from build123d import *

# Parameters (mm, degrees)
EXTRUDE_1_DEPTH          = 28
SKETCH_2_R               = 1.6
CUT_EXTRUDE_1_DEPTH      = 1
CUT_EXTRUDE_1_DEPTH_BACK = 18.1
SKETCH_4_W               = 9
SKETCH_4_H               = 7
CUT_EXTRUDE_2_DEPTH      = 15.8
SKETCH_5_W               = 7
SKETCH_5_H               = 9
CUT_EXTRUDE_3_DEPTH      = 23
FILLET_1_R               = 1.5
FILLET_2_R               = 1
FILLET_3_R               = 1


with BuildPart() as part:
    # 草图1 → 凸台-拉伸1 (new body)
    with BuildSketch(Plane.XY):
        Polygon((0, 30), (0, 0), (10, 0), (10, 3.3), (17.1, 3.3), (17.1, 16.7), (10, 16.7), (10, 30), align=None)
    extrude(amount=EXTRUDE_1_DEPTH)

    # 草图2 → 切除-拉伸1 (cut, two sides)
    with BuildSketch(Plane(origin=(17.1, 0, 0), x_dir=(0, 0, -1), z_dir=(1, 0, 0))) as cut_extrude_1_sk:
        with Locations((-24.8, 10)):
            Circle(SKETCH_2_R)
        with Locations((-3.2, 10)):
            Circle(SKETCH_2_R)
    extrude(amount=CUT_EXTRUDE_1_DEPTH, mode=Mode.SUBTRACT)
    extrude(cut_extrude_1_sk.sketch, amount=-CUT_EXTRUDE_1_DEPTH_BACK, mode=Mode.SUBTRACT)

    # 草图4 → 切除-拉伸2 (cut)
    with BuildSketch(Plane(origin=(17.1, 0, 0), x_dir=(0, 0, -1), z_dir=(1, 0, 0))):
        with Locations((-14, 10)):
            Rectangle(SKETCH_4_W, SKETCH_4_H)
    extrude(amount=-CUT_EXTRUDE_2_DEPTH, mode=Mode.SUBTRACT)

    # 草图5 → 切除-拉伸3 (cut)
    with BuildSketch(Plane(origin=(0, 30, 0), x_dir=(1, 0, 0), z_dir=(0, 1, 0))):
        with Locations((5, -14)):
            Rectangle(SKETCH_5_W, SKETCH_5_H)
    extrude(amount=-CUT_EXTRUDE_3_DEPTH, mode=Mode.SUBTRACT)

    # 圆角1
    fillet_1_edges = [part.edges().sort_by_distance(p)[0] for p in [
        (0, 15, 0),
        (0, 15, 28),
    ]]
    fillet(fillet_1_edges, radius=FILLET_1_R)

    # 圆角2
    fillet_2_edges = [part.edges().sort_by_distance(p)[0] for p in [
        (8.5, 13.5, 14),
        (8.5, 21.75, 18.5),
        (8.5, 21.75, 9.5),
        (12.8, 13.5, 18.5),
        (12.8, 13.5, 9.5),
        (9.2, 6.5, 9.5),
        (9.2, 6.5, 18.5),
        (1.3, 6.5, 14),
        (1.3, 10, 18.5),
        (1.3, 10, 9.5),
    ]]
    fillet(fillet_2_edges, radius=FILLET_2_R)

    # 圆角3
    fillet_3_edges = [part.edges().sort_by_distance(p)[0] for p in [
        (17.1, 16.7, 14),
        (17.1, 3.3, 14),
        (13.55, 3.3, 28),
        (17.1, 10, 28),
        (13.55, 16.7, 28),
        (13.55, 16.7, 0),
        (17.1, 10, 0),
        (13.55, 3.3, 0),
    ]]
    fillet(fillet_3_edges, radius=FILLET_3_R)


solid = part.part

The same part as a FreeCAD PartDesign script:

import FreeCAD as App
import Part
import Sketcher
from FreeCAD import Vector
Q = App.Units.Quantity


def edges_at(feature, points):
    """Names of the edges that pass closest to the given points."""
    edges = feature.Shape.Edges
    near = lambda p: min(range(len(edges)), key=lambda i: edges[i].distToShape(Part.Vertex(*p))[0])
    return sorted({f"Edge{near(p) + 1}" for p in points})

doc = App.newDocument("Part")
params = doc.addObject("Spreadsheet::Sheet", "Params")
for row, (alias, value) in enumerate([
    ("sketch1_width", "10 mm"),
    ("sketch1_height", "30 mm"),
    ("sketch1_width2", "7.1 mm"),
    ("sketch1_height2", "3.3 mm"),
    ("sketch1_height3", "13.4 mm"),
    ("pad1_length", "28 mm"),
    ("sketch2_diameter", "3.2 mm"),
    ("sketch3_width", "7 mm"),
    ("sketch3_height", "9 mm"),
    ("pocket2_length", "15.8 mm"),
    ("sketch4_width", "7 mm"),
    ("sketch4_height", "9 mm"),
    ("pocket3_length", "23 mm"),
    ("fillet_radius", "1.5 mm"),
    ("fillet2_radius", "1 mm"),
    ("fillet3_radius", "1 mm"),
], start=1):
    params.set(f"A{row}", alias)
    params.set(f"B{row}", "=" + value)
    params.setAlias(f"B{row}", alias)

body = doc.addObject("PartDesign::Body", "Body")

sketch1 = body.newObject("Sketcher::SketchObject", "Sketch")
sketch1.AttachmentSupport = (doc.getObject("XY_Plane"), [""])
sketch1.MapMode = "FlatFace"
sketch1.addGeometry([
    Part.LineSegment(Vector(0, 30, 0), Vector(0, 0, 0)),
    Part.LineSegment(Vector(0, 0, 0), Vector(10, 0, 0)),
    Part.LineSegment(Vector(10, 0, 0), Vector(10, 3.3, 0)),
    Part.LineSegment(Vector(10, 3.3, 0), Vector(17.1, 3.3, 0)),
    Part.LineSegment(Vector(17.1, 3.3, 0), Vector(17.1, 16.7, 0)),
    Part.LineSegment(Vector(17.1, 16.7, 0), Vector(10, 16.7, 0)),
    Part.LineSegment(Vector(10, 16.7, 0), Vector(10, 30, 0)),
    Part.LineSegment(Vector(10, 30, 0), Vector(0, 30, 0)),
], False)
sketch1.addConstraint([
    Sketcher.Constraint("Coincident", 0, 2, 1, 1),
    Sketcher.Constraint("Coincident", 1, 2, 2, 1),
    Sketcher.Constraint("Coincident", 2, 2, 3, 1),
    Sketcher.Constraint("Coincident", 3, 2, 4, 1),
    Sketcher.Constraint("Coincident", 4, 2, 5, 1),
    Sketcher.Constraint("Coincident", 5, 2, 6, 1),
    Sketcher.Constraint("Coincident", 6, 2, 7, 1),
    Sketcher.Constraint("Coincident", 7, 2, 0, 1),
    Sketcher.Constraint("Vertical", 0),
    Sketcher.Constraint("Horizontal", 1),
    Sketcher.Constraint("Vertical", 2),
    Sketcher.Constraint("Horizontal", 3),
    Sketcher.Constraint("Vertical", 4),
    Sketcher.Constraint("Horizontal", 5),
    Sketcher.Constraint("Vertical", 6),
    Sketcher.Constraint("Horizontal", 7),
    Sketcher.Constraint("Coincident", 0, 2, -1, 1),
    Sketcher.Constraint("Vertical", 2, 2, 5, 2),
    Sketcher.Constraint("DistanceX", 1, 1, 1, 2, Q("10 mm")),
    Sketcher.Constraint("DistanceY", 0, 2, 0, 1, Q("30 mm")),
    Sketcher.Constraint("DistanceX", 3, 1, 3, 2, Q("7.1 mm")),
    Sketcher.Constraint("DistanceY", 2, 1, 2, 2, Q("3.3 mm")),
    Sketcher.Constraint("DistanceY", 4, 1, 4, 2, Q("13.4 mm")),
])
sketch1.setExpression("Constraints[18]", "Params.sketch1_width")
sketch1.setExpression("Constraints[19]", "Params.sketch1_height")
sketch1.setExpression("Constraints[20]", "Params.sketch1_width2")
sketch1.setExpression("Constraints[21]", "Params.sketch1_height2")
sketch1.setExpression("Constraints[22]", "Params.sketch1_height3")
pad1 = body.newObject("PartDesign::Pad", "Pad")
pad1.Profile = sketch1
pad1.setExpression("Length", "Params.pad1_length")

sketch2 = body.newObject("Sketcher::SketchObject", "Sketch001")
sketch2.AttachmentSupport = (doc.getObject("YZ_Plane"), [""])
sketch2.MapMode = "FlatFace"
sketch2.AttachmentOffset = App.Placement(Vector(0, 0, 17.1), App.Rotation())
sketch2.addGeometry([
    Part.Circle(Vector(10, 24.8, 0), Vector(0, 0, 1), 1.6),
    Part.Circle(Vector(10, 3.2, 0), Vector(0, 0, 1), 1.6),
], False)
sketch2.addConstraint([
    Sketcher.Constraint("Equal", 0, 1),
    Sketcher.Constraint("Vertical", 0, 3, 1, 3),
    Sketcher.Constraint("Diameter", 0, Q("3.2 mm")),
    Sketcher.Constraint("DistanceX", -1, 1, 0, 3, Q("10 mm")),
    Sketcher.Constraint("DistanceY", -1, 1, 0, 3, Q("24.8 mm")),
    Sketcher.Constraint("DistanceY", -1, 1, 1, 3, Q("3.2 mm")),
])
sketch2.setExpression("Constraints[2]", "Params.sketch2_diameter")
pocket1 = body.newObject("PartDesign::Pocket", "Pocket")
pocket1.Profile = sketch2
pocket1.Type = "ThroughAll"
pocket1.Midplane = True

sketch3 = body.newObject("Sketcher::SketchObject", "Sketch002")
sketch3.AttachmentSupport = (doc.getObject("YZ_Plane"), [""])
sketch3.MapMode = "FlatFace"
sketch3.AttachmentOffset = App.Placement(Vector(0, 0, 17.1), App.Rotation())
sketch3.addGeometry([
    Part.LineSegment(Vector(13.5, 18.5, 0), Vector(6.5, 18.5, 0)),
    Part.LineSegment(Vector(6.5, 18.5, 0), Vector(6.5, 9.5, 0)),
    Part.LineSegment(Vector(6.5, 9.5, 0), Vector(13.5, 9.5, 0)),
    Part.LineSegment(Vector(13.5, 9.5, 0), Vector(13.5, 18.5, 0)),
], False)
sketch3.addConstraint([
    Sketcher.Constraint("Coincident", 0, 2, 1, 1),
    Sketcher.Constraint("Coincident", 1, 2, 2, 1),
    Sketcher.Constraint("Coincident", 2, 2, 3, 1),
    Sketcher.Constraint("Coincident", 3, 2, 0, 1),
    Sketcher.Constraint("Horizontal", 0),
    Sketcher.Constraint("Vertical", 1),
    Sketcher.Constraint("Horizontal", 2),
    Sketcher.Constraint("Vertical", 3),
    Sketcher.Constraint("DistanceX", 0, 2, 0, 1, Q("7 mm")),
    Sketcher.Constraint("DistanceY", 1, 2, 1, 1, Q("9 mm")),
    Sketcher.Constraint("DistanceX", -1, 1, 0, 2, Q("6.5 mm")),
    Sketcher.Constraint("DistanceY", -1, 1, 0, 2, Q("18.5 mm")),
])
sketch3.setExpression("Constraints[8]", "Params.sketch3_width")
sketch3.setExpression("Constraints[9]", "Params.sketch3_height")
pocket2 = body.newObject("PartDesign::Pocket", "Pocket001")
pocket2.Profile = sketch3
pocket2.setExpression("Length", "Params.pocket2_length")

sketch4 = body.newObject("Sketcher::SketchObject", "Sketch003")
sketch4.AttachmentSupport = (doc.getObject("XZ_Plane"), [""])
sketch4.MapMode = "FlatFace"
sketch4.AttachmentOffset = App.Placement(Vector(0, 0, -30), App.Rotation())
sketch4.addGeometry([
    Part.LineSegment(Vector(1.5, 9.5, 0), Vector(1.5, 18.5, 0)),
    Part.LineSegment(Vector(1.5, 18.5, 0), Vector(8.5, 18.5, 0)),
    Part.LineSegment(Vector(8.5, 18.5, 0), Vector(8.5, 9.5, 0)),
    Part.LineSegment(Vector(8.5, 9.5, 0), Vector(1.5, 9.5, 0)),
], False)
sketch4.addConstraint([
    Sketcher.Constraint("Coincident", 0, 2, 1, 1),
    Sketcher.Constraint("Coincident", 1, 2, 2, 1),
    Sketcher.Constraint("Coincident", 2, 2, 3, 1),
    Sketcher.Constraint("Coincident", 3, 2, 0, 1),
    Sketcher.Constraint("Vertical", 0),
    Sketcher.Constraint("Horizontal", 1),
    Sketcher.Constraint("Vertical", 2),
    Sketcher.Constraint("Horizontal", 3),
    Sketcher.Constraint("DistanceX", 1, 1, 1, 2, Q("7 mm")),
    Sketcher.Constraint("DistanceY", 0, 1, 0, 2, Q("9 mm")),
    Sketcher.Constraint("DistanceX", -1, 1, 0, 2, Q("1.5 mm")),
    Sketcher.Constraint("DistanceY", -1, 1, 0, 2, Q("18.5 mm")),
])
sketch4.setExpression("Constraints[8]", "Params.sketch4_width")
sketch4.setExpression("Constraints[9]", "Params.sketch4_height")
pocket3 = body.newObject("PartDesign::Pocket", "Pocket002")
pocket3.Profile = sketch4
pocket3.setExpression("Length", "Params.pocket3_length")
pocket3.Reversed = True
doc.recompute()

fillet = body.newObject("PartDesign::Fillet", "Fillet")
fillet.Base = (pocket3, edges_at(pocket3, [(0, 15, 0), (0, 15, 28)]))
fillet.setExpression("Radius", "Params.fillet_radius")
doc.recompute()

fillet2 = body.newObject("PartDesign::Fillet", "Fillet001")
fillet2.Base = (fillet, edges_at(fillet, [
    (8.5, 13.5, 14),
    (8.5, 21.75, 18.5),
    (8.5, 21.75, 9.5),
    (12.8, 13.5, 18.5),
    (12.8, 13.5, 9.5),
    (9.2, 6.5, 9.5),
    (9.2, 6.5, 18.5),
    (1.3, 6.5, 14),
    (1.3, 10, 18.5),
    (1.3, 10, 9.5),
]))
fillet2.setExpression("Radius", "Params.fillet2_radius")
doc.recompute()

fillet3 = body.newObject("PartDesign::Fillet", "Fillet002")
fillet3.Base = (fillet2, edges_at(fillet2, [
    (17.1, 16.7, 14),
    (17.1, 3.3, 14),
    (13.55, 3.3, 28),
    (17.1, 10, 28),
    (13.55, 16.7, 28),
    (13.55, 16.7, 0),
    (17.1, 10, 0),
    (13.55, 3.3, 0),
]))
fillet3.setExpression("Radius", "Params.fillet3_radius")

doc.recompute()
